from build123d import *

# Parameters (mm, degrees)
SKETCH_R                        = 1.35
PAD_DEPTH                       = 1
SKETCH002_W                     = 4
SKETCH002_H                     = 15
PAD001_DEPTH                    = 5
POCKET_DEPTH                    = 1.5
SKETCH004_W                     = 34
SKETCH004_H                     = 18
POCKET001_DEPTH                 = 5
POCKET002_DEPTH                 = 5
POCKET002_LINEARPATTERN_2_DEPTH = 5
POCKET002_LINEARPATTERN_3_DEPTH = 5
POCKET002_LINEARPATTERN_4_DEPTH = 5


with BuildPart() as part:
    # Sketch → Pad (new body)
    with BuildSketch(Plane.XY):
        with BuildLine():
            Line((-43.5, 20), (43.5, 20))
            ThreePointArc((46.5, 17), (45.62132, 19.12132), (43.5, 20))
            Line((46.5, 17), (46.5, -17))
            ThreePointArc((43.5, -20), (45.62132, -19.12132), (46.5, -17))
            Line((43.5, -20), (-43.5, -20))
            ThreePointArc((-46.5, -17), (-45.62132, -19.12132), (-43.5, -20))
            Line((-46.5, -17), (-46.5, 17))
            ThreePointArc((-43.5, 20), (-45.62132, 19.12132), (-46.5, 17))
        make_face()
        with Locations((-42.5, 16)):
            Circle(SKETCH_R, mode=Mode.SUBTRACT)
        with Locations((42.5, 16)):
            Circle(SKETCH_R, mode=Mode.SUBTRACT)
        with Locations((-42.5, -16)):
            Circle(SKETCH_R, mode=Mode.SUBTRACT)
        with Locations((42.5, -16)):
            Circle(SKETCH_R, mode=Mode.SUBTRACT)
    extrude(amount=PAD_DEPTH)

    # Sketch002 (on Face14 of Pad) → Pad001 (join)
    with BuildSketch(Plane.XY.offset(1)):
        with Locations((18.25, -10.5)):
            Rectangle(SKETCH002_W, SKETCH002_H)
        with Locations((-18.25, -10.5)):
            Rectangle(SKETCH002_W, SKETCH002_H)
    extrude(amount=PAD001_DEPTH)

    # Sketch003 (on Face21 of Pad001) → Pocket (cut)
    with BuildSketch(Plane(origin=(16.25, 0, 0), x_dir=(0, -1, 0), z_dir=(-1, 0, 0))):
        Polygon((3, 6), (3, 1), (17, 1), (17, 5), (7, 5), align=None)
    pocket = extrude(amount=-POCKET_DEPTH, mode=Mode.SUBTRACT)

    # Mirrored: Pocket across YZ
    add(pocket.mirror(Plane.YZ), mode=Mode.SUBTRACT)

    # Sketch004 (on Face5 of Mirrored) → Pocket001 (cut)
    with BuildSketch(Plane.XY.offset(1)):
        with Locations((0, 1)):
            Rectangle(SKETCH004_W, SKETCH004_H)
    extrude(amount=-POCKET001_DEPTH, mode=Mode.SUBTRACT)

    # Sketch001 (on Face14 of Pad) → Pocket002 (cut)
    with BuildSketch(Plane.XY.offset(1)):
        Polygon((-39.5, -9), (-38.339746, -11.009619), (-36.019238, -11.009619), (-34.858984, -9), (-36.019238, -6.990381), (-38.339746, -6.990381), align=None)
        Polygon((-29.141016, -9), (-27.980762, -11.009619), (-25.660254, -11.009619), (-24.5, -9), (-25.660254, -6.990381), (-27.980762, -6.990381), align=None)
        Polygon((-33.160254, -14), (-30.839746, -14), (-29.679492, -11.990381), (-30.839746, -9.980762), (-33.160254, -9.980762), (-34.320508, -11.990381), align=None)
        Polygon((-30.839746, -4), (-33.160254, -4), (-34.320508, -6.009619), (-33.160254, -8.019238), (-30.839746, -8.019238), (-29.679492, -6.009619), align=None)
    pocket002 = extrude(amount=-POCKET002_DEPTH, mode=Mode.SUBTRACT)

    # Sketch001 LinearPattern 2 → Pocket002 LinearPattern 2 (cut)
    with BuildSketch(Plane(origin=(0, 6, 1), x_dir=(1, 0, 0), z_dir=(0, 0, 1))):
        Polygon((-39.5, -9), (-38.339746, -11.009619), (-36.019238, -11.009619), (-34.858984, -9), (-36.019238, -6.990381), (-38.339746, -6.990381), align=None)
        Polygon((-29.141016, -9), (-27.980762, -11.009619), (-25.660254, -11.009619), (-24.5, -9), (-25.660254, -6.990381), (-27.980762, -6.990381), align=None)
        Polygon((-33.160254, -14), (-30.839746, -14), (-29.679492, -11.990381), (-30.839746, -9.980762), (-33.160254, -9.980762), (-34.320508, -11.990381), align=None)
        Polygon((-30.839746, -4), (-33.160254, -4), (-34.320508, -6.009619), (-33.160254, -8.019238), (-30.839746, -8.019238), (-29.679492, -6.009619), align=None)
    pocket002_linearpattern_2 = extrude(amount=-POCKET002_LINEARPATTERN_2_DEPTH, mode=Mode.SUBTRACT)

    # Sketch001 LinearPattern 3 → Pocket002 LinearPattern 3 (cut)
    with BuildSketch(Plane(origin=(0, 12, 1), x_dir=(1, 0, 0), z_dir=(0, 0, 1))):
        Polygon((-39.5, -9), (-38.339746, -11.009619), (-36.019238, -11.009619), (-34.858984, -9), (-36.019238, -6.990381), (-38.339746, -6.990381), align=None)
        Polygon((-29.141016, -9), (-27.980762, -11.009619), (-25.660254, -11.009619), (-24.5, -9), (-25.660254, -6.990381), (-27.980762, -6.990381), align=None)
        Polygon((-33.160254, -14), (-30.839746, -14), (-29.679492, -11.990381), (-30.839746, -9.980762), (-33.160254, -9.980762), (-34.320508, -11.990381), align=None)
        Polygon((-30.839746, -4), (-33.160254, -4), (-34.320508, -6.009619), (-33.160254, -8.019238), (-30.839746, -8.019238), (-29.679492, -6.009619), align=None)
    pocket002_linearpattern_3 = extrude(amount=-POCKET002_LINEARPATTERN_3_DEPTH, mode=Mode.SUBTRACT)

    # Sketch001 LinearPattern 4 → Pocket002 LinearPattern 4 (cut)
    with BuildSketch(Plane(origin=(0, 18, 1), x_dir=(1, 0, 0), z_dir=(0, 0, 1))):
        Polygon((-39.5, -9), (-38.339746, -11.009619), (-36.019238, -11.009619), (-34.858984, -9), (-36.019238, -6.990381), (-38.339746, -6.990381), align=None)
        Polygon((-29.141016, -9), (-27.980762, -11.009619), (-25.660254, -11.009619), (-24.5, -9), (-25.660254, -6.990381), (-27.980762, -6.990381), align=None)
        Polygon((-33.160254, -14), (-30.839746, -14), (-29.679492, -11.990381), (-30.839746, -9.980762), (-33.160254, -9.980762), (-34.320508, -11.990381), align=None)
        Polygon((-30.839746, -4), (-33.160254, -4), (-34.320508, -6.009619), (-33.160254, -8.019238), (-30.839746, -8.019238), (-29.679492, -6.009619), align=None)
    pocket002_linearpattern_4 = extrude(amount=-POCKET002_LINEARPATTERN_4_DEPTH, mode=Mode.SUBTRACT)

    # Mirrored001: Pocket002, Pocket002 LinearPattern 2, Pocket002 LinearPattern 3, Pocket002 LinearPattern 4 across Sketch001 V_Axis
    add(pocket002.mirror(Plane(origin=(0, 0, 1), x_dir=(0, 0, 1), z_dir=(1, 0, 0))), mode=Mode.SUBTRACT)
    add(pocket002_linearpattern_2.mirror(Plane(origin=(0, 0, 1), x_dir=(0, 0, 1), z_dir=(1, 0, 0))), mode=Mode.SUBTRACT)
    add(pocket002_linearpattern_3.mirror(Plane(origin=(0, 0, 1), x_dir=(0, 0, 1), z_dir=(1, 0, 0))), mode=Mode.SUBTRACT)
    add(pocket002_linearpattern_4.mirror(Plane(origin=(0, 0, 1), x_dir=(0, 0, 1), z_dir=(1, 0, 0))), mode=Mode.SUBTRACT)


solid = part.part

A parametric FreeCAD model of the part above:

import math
import FreeCAD as App
import Part
import Sketcher
Q = App.Units.Quantity


def add_polygon(sketch, points):
    """Adds a closed chain of lines whose ends are joined by coincident constraints."""
    first, n = sketch.GeometryCount, len(points)
    for a, b in zip(points, points[1:] + points[:1]):
        sketch.addGeometry(Part.LineSegment(App.Vector(*a, 0), App.Vector(*b, 0)), False)
    for i in range(n):
        sketch.addConstraint(Sketcher.Constraint("Coincident", first + i, 2, first + (i + 1) % n, 1))

doc = App.newDocument("Part")
body = doc.addObject("PartDesign::Body", "Body")

# Sketch on XY plane
sketch1 = doc.addObject("Sketcher::SketchObject", "Sketch")
body.addObject(sketch1)
sketch1.AttachmentSupport = (doc.XY_Plane, [""])
sketch1.MapMode = "FlatFace"
sketch1.addGeometry([
    Part.LineSegment(App.Vector(43.5, 20, 0), App.Vector(-43.5, 20, 0)),  # 0
    Part.ArcOfCircle(Part.Circle(App.Vector(-43.499999, 16.999999, 0), App.Vector(0, 0, 1), 3.000001), math.radians(90.000022), math.radians(179.999978)),  # 1
    Part.LineSegment(App.Vector(-46.5, 17, 0), App.Vector(-46.5, -17, 0)),  # 2
    Part.ArcOfCircle(Part.Circle(App.Vector(-43.499999, -16.999999, 0), App.Vector(0, 0, 1), 3.000001), math.radians(-179.999978), math.radians(-90.000022)),  # 3
    Part.LineSegment(App.Vector(-43.5, -20, 0), App.Vector(43.5, -20, 0)),  # 4
    Part.ArcOfCircle(Part.Circle(App.Vector(43.499999, -16.999999, 0), App.Vector(0, 0, 1), 3.000001), math.radians(-89.999978), math.radians(-0.000022)),  # 5
    Part.LineSegment(App.Vector(46.5, -17, 0), App.Vector(46.5, 17, 0)),  # 6
    Part.ArcOfCircle(Part.Circle(App.Vector(43.499999, 16.999999, 0), App.Vector(0, 0, 1), 3.000001), math.radians(0.000022), math.radians(89.999978)),  # 7
    Part.Circle(App.Vector(42.5, -16, 0), App.Vector(0, 0, 1), 1.35),  # 8
    Part.Circle(App.Vector(-42.5, -16, 0), App.Vector(0, 0, 1), 1.35),  # 9
    Part.Circle(App.Vector(42.5, 16, 0), App.Vector(0, 0, 1), 1.35),  # 10
    Part.Circle(App.Vector(-42.5, 16, 0), App.Vector(0, 0, 1), 1.35),  # 11
], False)
sketch1.addConstraint([
    Sketcher.Constraint("Tangent", 0, 2, 1, 1),
    Sketcher.Constraint("Tangent", 1, 2, 2, 1),
    Sketcher.Constraint("Tangent", 2, 2, 3, 1),
    Sketcher.Constraint("Tangent", 3, 2, 4, 1),
    Sketcher.Constraint("Tangent", 4, 2, 5, 1),
    Sketcher.Constraint("Tangent", 5, 2, 6, 1),
    Sketcher.Constraint("Tangent", 6, 2, 7, 1),
    Sketcher.Constraint("Tangent", 7, 2, 0, 1),
    Sketcher.Constraint("Horizontal", 0),
    Sketcher.Constraint("Vertical", 2),
    Sketcher.Constraint("Horizontal", 4),
    Sketcher.Constraint("Vertical", 6),
    Sketcher.Constraint("Equal", 1, 3),
    Sketcher.Constraint("Equal", 3, 5),
    Sketcher.Constraint("Equal", 5, 7),
    Sketcher.Constraint("Equal", 8, 9),
    Sketcher.Constraint("Equal", 9, 10),
    Sketcher.Constraint("Equal", 10, 11),
    Sketcher.Constraint("Symmetric", 1, 3, 5, 3, -1, 1),
    Sketcher.Constraint("Symmetric", 9, 3, 10, 3, -1, 1),
    Sketcher.Constraint("Symmetric", 8, 3, 11, 3, -1, 1),
    Sketcher.Constraint("Symmetric", 8, 3, 9, 3, -2),
    Sketcher.Constraint("Radius", 1, 3.000001),
    Sketcher.Constraint("Diameter", 8, 2.7),
    Sketcher.Constraint("DistanceX", 0, 2, 0, 1, 87.0),
    Sketcher.Constraint("DistanceY", 2, 2, 2, 1, 34.0),
    Sketcher.Constraint("DistanceY", 8, 3, -1, 1, 16.0),
    Sketcher.Constraint("DistanceX", 8, 3, 5, 3, 0.999999),
])
pad1 = doc.addObject("PartDesign::Pad", "Pad")
body.addObject(pad1)
pad1.Profile = sketch1
pad1.Length = 1

# Sketch on XY plane
sketch2 = doc.addObject("Sketcher::SketchObject", "Sketch001")
body.addObject(sketch2)
sketch2.AttachmentSupport = (doc.XY_Plane, [""])
sketch2.MapMode = "FlatFace"
sketch2.AttachmentOffset = App.Placement(App.Vector(0, 0, 1), App.Rotation())
add_polygon(sketch2, [(16.25, -3), (16.25, -18), (20.25, -18), (20.25, -3)])  # lines 0-3
add_polygon(sketch2, [(-20.25, -3), (-20.25, -18), (-16.25, -18), (-16.25, -3)])  # lines 4-7
sketch2.addConstraint([
    Sketcher.Constraint("Vertical", 0),
    Sketcher.Constraint("Horizontal", 1),
    Sketcher.Constraint("Vertical", 2),
    Sketcher.Constraint("Horizontal", 3),
    Sketcher.Constraint("Vertical", 4),
    Sketcher.Constraint("Horizontal", 5),
    Sketcher.Constraint("Vertical", 6),
    Sketcher.Constraint("Horizontal", 7),
    Sketcher.Constraint("Symmetric", 1, 2, 4, 2, -2),
    Sketcher.Constraint("Symmetric", 3, 2, 6, 2, -2),
    Sketcher.Constraint("DistanceX", 1, 1, 1, 2, 4.0),
    Sketcher.Constraint("DistanceY", 0, 2, 0, 1, 15.0),
    Sketcher.Constraint("DistanceY", 0, 2, -1, 1, 18.0),
    Sketcher.Constraint("DistanceX", 4, 2, 0, 2, 36.5),
])
pad2 = doc.addObject("PartDesign::Pad", "Pad001")
body.addObject(pad2)
pad2.Profile = sketch2
pad2.Length = 5

# Sketch on YZ plane
sketch3 = doc.addObject("Sketcher::SketchObject", "Sketch002")
body.addObject(sketch3)
sketch3.AttachmentSupport = (doc.YZ_Plane, [""])
sketch3.MapMode = "FlatFace"
sketch3.AttachmentOffset = App.Placement(App.Vector(0, 0, 16.25), App.Rotation())
add_polygon(sketch3, [(-3, 6), (-3, 1), (-17, 1), (-17, 5), (-7, 5)])  # lines 0-4
sketch3.addConstraint([
    Sketcher.Constraint("Vertical", 0),
    Sketcher.Constraint("Horizontal", 1),
    Sketcher.Constraint("Vertical", 2),
    Sketcher.Constraint("Horizontal", 3),
    Sketcher.Constraint("DistanceX", 1, 2, 1, 1, 14.0),
    Sketcher.Constraint("DistanceX", 3, 1, 3, 2, 10.0),
    Sketcher.Constraint("DistanceY", 0, 2, 0, 1, 5.0),
    Sketcher.Constraint("DistanceY", 2, 1, 2, 2, 4.0),
    Sketcher.Constraint("DistanceX", 0, 2, -1, 1, 3.0),
    Sketcher.Constraint("DistanceY", -1, 1, 0, 2, 1.0),
])
pocket1 = doc.addObject("PartDesign::Pocket", "Pocket")
body.addObject(pocket1)
pocket1.Profile = sketch3
pocket1.Length = 1.5
pocket1.Reversed = True
doc.recompute()

mirrored = doc.addObject("PartDesign::Mirrored", "Mirrored")
body.addObject(mirrored)
mirrored.Originals = [pocket1]
mirrored.MirrorPlane = (doc.YZ_Plane, [""])
body.Tip = mirrored

# Sketch on XY plane
sketch4 = doc.addObject("Sketcher::SketchObject", "Sketch003")
body.addObject(sketch4)
sketch4.AttachmentSupport = (doc.XY_Plane, [""])
sketch4.MapMode = "FlatFace"
sketch4.AttachmentOffset = App.Placement(App.Vector(0, 0, 1), App.Rotation())
add_polygon(sketch4, [(-17, 10), (-17, -8), (17, -8), (17, 10)])  # lines 0-3
sketch4.addConstraint([
    Sketcher.Constraint("Vertical", 0),
    Sketcher.Constraint("Horizontal", 1),
    Sketcher.Constraint("Vertical", 2),
    Sketcher.Constraint("Horizontal", 3),
    Sketcher.Constraint("DistanceX", 1, 1, 1, 2, 34.0),
    Sketcher.Constraint("DistanceY", 0, 2, 0, 1, 18.0),
    Sketcher.Constraint("DistanceX", 0, 2, -1, 1, 17.0),
    Sketcher.Constraint("DistanceY", 0, 2, -1, 1, 8.0),
])
pocket2 = doc.addObject("PartDesign::Pocket", "Pocket001")
body.addObject(pocket2)
pocket2.Profile = sketch4
pocket2.Length = 5

# Sketch on XY plane
sketch5 = doc.addObject("Sketcher::SketchObject", "Sketch004")
body.addObject(sketch5)
sketch5.AttachmentSupport = (doc.XY_Plane, [""])
sketch5.MapMode = "FlatFace"
sketch5.AttachmentOffset = App.Placement(App.Vector(0, 0, 1), App.Rotation())
add_polygon(sketch5, [(-39.5, -9), (-38.339746, -11.009619), (-36.019238, -11.009619), (-34.858984, -9), (-36.019238, -6.990381), (-38.339746, -6.990381)])  # lines 0-5
add_polygon(sketch5, [(-29.141016, -9), (-27.980762, -11.009619), (-25.660254, -11.009619), (-24.5, -9), (-25.660254, -6.990381), (-27.980762, -6.990381)])  # lines 6-11
add_polygon(sketch5, [(-33.160254, -14), (-30.839746, -14), (-29.679492, -11.990381), (-30.839746, -9.980762), (-33.160254, -9.980762), (-34.320508, -11.990381)])  # lines 12-17
add_polygon(sketch5, [(-30.839746, -4), (-33.160254, -4), (-34.320508, -6.009619), (-33.160254, -8.019238), (-30.839746, -8.019238), (-29.679492, -6.009619)])  # lines 18-23
sketch5.addConstraint([
    Sketcher.Constraint("Horizontal", 1),
    Sketcher.Constraint("Horizontal", 4),
    Sketcher.Constraint("Horizontal", 7),
    Sketcher.Constraint("Horizontal", 10),
    Sketcher.Constraint("Horizontal", 12),
    Sketcher.Constraint("Horizontal", 15),
    Sketcher.Constraint("Horizontal", 18),
    Sketcher.Constraint("Horizontal", 21),
    Sketcher.Constraint("Parallel", 0, 3),
    Sketcher.Constraint("Parallel", 2, 5),
    Sketcher.Constraint("Parallel", 3, 6),
    Sketcher.Constraint("Parallel", 5, 8),
    Sketcher.Constraint("Parallel", 6, 9),
    Sketcher.Constraint("Parallel", 8, 11),
    Sketcher.Constraint("Parallel", 11, 13),
    Sketcher.Constraint("Parallel", 9, 14),
    Sketcher.Constraint("Parallel", 13, 16),
    Sketcher.Constraint("Parallel", 14, 17),
    Sketcher.Constraint("Parallel", 16, 19),
    Sketcher.Constraint("Parallel", 17, 20),
    Sketcher.Constraint("Parallel", 19, 22),
    Sketcher.Constraint("Parallel", 20, 23),
    Sketcher.Constraint("Horizontal", 2, 2, 5, 2),
    Sketcher.Constraint("Horizontal", 1, 2, 6, 2),
    Sketcher.Constraint("Horizontal", 5, 2, 8, 2),
    Sketcher.Constraint("Horizontal", 4, 2, 9, 2),
    Sketcher.Constraint("Horizontal", 8, 2, 11, 2),
    Sketcher.Constraint("Horizontal", 13, 2, 16, 2),
    Sketcher.Constraint("Horizontal", 19, 2, 22, 2),
    Sketcher.Constraint("Vertical", 1, 2, 3, 2),
    Sketcher.Constraint("Vertical", 0, 2, 4, 2),
    Sketcher.Constraint("Vertical", 12, 2, 14, 2),
    Sketcher.Constraint("Vertical", 17, 2, 18, 2),
    Sketcher.Constraint("Vertical", 16, 2, 19, 2),
    Sketcher.Constraint("Vertical", 18, 2, 20, 2),
    Sketcher.Constraint("Vertical", 14, 2, 21, 2),
    Sketcher.Constraint("Equal", 4, 7),
    Sketcher.Constraint("Equal", 10, 12),
    Sketcher.Constraint("Equal", 11, 13),
    Sketcher.Constraint("Angle", 0, Q("-60.000002 deg")),
    Sketcher.Constraint("DistanceY", 2, 2, -1, 1, 9.0),
    Sketcher.Constraint("DistanceY", 12, 2, -1, 1, 14.0),
    Sketcher.Constraint("DistanceY", 18, 2, -1, 1, 4.0),
    Sketcher.Constraint("DistanceX", 5, 2, -1, 1, 39.5),
    Sketcher.Constraint("DistanceX", 8, 2, -1, 1, 24.5),
    Sketcher.Constraint("DistanceX", 7, 1, 7, 2, 2.320508),
    Sketcher.Constraint("Distance", 0, 2.320508),
    Sketcher.Constraint("DistanceX", 13, 2, -1, 1, 29.679492),
])
pocket3 = doc.addObject("PartDesign::Pocket", "Pocket002")
body.addObject(pocket3)
pocket3.Profile = sketch5
pocket3.Length = 5

# Sketch on XY plane
sketch6 = doc.addObject("Sketcher::SketchObject", "Sketch005")
body.addObject(sketch6)
sketch6.AttachmentSupport = (doc.XY_Plane, [""])
sketch6.MapMode = "FlatFace"
sketch6.AttachmentOffset = App.Placement(App.Vector(0, 0, 1), App.Rotation())
add_polygon(sketch6, [(-39.5, -3), (-38.339746, -5.009619), (-36.019238, -5.009619), (-34.858984, -3), (-36.019238, -0.990381), (-38.339746, -0.990381)])  # lines 0-5
add_polygon(sketch6, [(-29.141016, -3), (-27.980762, -5.009619), (-25.660254, -5.009619), (-24.5, -3), (-25.660254, -0.990381), (-27.980762, -0.990381)])  # lines 6-11
add_polygon(sketch6, [(-33.160254, -8), (-30.839746, -8), (-29.679492, -5.990381), (-30.839746, -3.980762), (-33.160254, -3.980762), (-34.320508, -5.990381)])  # lines 12-17
add_polygon(sketch6, [(-30.839746, 2), (-33.160254, 2), (-34.320508, -0.009619), (-33.160254, -2.019238), (-30.839746, -2.019238), (-29.679492, -0.009619)])  # lines 18-23
sketch6.addConstraint([
    Sketcher.Constraint("Horizontal", 1),
    Sketcher.Constraint("Horizontal", 4),
    Sketcher.Constraint("Horizontal", 7),
    Sketcher.Constraint("Horizontal", 10),
    Sketcher.Constraint("Horizontal", 12),
    Sketcher.Constraint("Horizontal", 15),
    Sketcher.Constraint("Horizontal", 18),
    Sketcher.Constraint("Horizontal", 21),
    Sketcher.Constraint("Parallel", 0, 3),
    Sketcher.Constraint("Parallel", 2, 5),
    Sketcher.Constraint("Parallel", 3, 6),
    Sketcher.Constraint("Parallel", 5, 8),
    Sketcher.Constraint("Parallel", 6, 9),
    Sketcher.Constraint("Parallel", 8, 11),
    Sketcher.Constraint("Parallel", 11, 13),
    Sketcher.Constraint("Parallel", 9, 14),
    Sketcher.Constraint("Parallel", 13, 16),
    Sketcher.Constraint("Parallel", 14, 17),
    Sketcher.Constraint("Parallel", 16, 19),
    Sketcher.Constraint("Parallel", 17, 20),
    Sketcher.Constraint("Parallel", 19, 22),
    Sketcher.Constraint("Parallel", 20, 23),
    Sketcher.Constraint("Horizontal", 2, 2, 5, 2),
    Sketcher.Constraint("Horizontal", 1, 2, 6, 2),
    Sketcher.Constraint("Horizontal", 5, 2, 8, 2),
    Sketcher.Constraint("Horizontal", 4, 2, 9, 2),
    Sketcher.Constraint("Horizontal", 8, 2, 11, 2),
    Sketcher.Constraint("Horizontal", 13, 2, 16, 2),
    Sketcher.Constraint("Horizontal", 19, 2, 22, 2),
    Sketcher.Constraint("Vertical", 1, 2, 3, 2),
    Sketcher.Constraint("Vertical", 0, 2, 4, 2),
    Sketcher.Constraint("Vertical", 12, 2, 14, 2),
    Sketcher.Constraint("Vertical", 17, 2, 18, 2),
    Sketcher.Constraint("Vertical", 16, 2, 19, 2),
    Sketcher.Constraint("Vertical", 18, 2, 20, 2),
    Sketcher.Constraint("Vertical", 14, 2, 21, 2),
    Sketcher.Constraint("Equal", 4, 7),
    Sketcher.Constraint("Equal", 10, 12),
    Sketcher.Constraint("Equal", 11, 13),
    Sketcher.Constraint("Angle", 0, Q("-60.000002 deg")),
    Sketcher.Constraint("DistanceY", 2, 2, -1, 1, 3.0),
    Sketcher.Constraint("DistanceY", 12, 2, -1, 1, 8.0),
    Sketcher.Constraint("DistanceY", -1, 1, 18, 2, 2.0),
    Sketcher.Constraint("DistanceX", 5, 2, -1, 1, 39.5),
    Sketcher.Constraint("DistanceX", 8, 2, -1, 1, 24.5),
    Sketcher.Constraint("DistanceX", 7, 1, 7, 2, 2.320508),
    Sketcher.Constraint("Distance", 0, 2.320508),
    Sketcher.Constraint("DistanceX", 13, 2, -1, 1, 29.679492),
])
pocket4 = doc.addObject("PartDesign::Pocket", "Pocket003")
body.addObject(pocket4)
pocket4.Profile = sketch6
pocket4.Length = 5

# Sketch on XY plane
sketch7 = doc.addObject("Sketcher::SketchObject", "Sketch006")
body.addObject(sketch7)
sketch7.AttachmentSupport = (doc.XY_Plane, [""])
sketch7.MapMode = "FlatFace"
sketch7.AttachmentOffset = App.Placement(App.Vector(0, 0, 1), App.Rotation())
add_polygon(sketch7, [(-39.5, 3), (-38.339746, 0.990381), (-36.019238, 0.990381), (-34.858984, 3), (-36.019238, 5.009619), (-38.339746, 5.009619)])  # lines 0-5
add_polygon(sketch7, [(-29.141016, 3), (-27.980762, 0.990381), (-25.660254, 0.990381), (-24.5, 3), (-25.660254, 5.009619), (-27.980762, 5.009619)])  # lines 6-11
add_polygon(sketch7, [(-33.160254, -2), (-30.839746, -2), (-29.679492, 0.009619), (-30.839746, 2.019238), (-33.160254, 2.019238), (-34.320508, 0.009619)])  # lines 12-17
add_polygon(sketch7, [(-30.839746, 8), (-33.160254, 8), (-34.320508, 5.990381), (-33.160254, 3.980762), (-30.839746, 3.980762), (-29.679492, 5.990381)])  # lines 18-23
sketch7.addConstraint([
    Sketcher.Constraint("Horizontal", 1),
    Sketcher.Constraint("Horizontal", 4),
    Sketcher.Constraint("Horizontal", 7),
    Sketcher.Constraint("Horizontal", 10),
    Sketcher.Constraint("Horizontal", 12),
    Sketcher.Constraint("Horizontal", 15),
    Sketcher.Constraint("Horizontal", 18),
    Sketcher.Constraint("Horizontal", 21),
    Sketcher.Constraint("Parallel", 0, 3),
    Sketcher.Constraint("Parallel", 2, 5),
    Sketcher.Constraint("Parallel", 3, 6),
    Sketcher.Constraint("Parallel", 5, 8),
    Sketcher.Constraint("Parallel", 6, 9),
    Sketcher.Constraint("Parallel", 8, 11),
    Sketcher.Constraint("Parallel", 11, 13),
    Sketcher.Constraint("Parallel", 9, 14),
    Sketcher.Constraint("Parallel", 13, 16),
    Sketcher.Constraint("Parallel", 14, 17),
    Sketcher.Constraint("Parallel", 16, 19),
    Sketcher.Constraint("Parallel", 17, 20),
    Sketcher.Constraint("Parallel", 19, 22),
    Sketcher.Constraint("Parallel", 20, 23),
    Sketcher.Constraint("Horizontal", 2, 2, 5, 2),
    Sketcher.Constraint("Horizontal", 1, 2, 6, 2),
    Sketcher.Constraint("Horizontal", 5, 2, 8, 2),
    Sketcher.Constraint("Horizontal", 4, 2, 9, 2),
    Sketcher.Constraint("Horizontal", 8, 2, 11, 2),
    Sketcher.Constraint("Horizontal", 13, 2, 16, 2),
    Sketcher.Constraint("Horizontal", 19, 2, 22, 2),
    Sketcher.Constraint("Vertical", 1, 2, 3, 2),
    Sketcher.Constraint("Vertical", 0, 2, 4, 2),
    Sketcher.Constraint("Vertical", 12, 2, 14, 2),
    Sketcher.Constraint("Vertical", 17, 2, 18, 2),
    Sketcher.Constraint("Vertical", 16, 2, 19, 2),
    Sketcher.Constraint("Vertical", 18, 2, 20, 2),
    Sketcher.Constraint("Vertical", 14, 2, 21, 2),
    Sketcher.Constraint("Equal", 4, 7),
    Sketcher.Constraint("Equal", 10, 12),
    Sketcher.Constraint("Equal", 11, 13),
    Sketcher.Constraint("Angle", 0, Q("-60.000002 deg")),
    Sketcher.Constraint("DistanceY", -1, 1, 2, 2, 3.0),
    Sketcher.Constraint("DistanceY", 12, 2, -1, 1, 2.0),
    Sketcher.Constraint("DistanceY", -1, 1, 18, 2, 8.0),
    Sketcher.Constraint("DistanceX", 5, 2, -1, 1, 39.5),
    Sketcher.Constraint("DistanceX", 8, 2, -1, 1, 24.5),
    Sketcher.Constraint("DistanceX", 7, 1, 7, 2, 2.320508),
    Sketcher.Constraint("Distance", 0, 2.320508),
    Sketcher.Constraint("DistanceX", 13, 2, -1, 1, 29.679492),
])
pocket5 = doc.addObject("PartDesign::Pocket", "Pocket004")
body.addObject(pocket5)
pocket5.Profile = sketch7
pocket5.Length = 5

# Sketch on XY plane
sketch8 = doc.addObject("Sketcher::SketchObject", "Sketch007")
body.addObject(sketch8)
sketch8.AttachmentSupport = (doc.XY_Plane, [""])
sketch8.MapMode = "FlatFace"
sketch8.AttachmentOffset = App.Placement(App.Vector(0, 0, 1), App.Rotation())
add_polygon(sketch8, [(-39.5, 9), (-38.339746, 6.990381), (-36.019238, 6.990381), (-34.858984, 9), (-36.019238, 11.009619), (-38.339746, 11.009619)])  # lines 0-5
add_polygon(sketch8, [(-29.141016, 9), (-27.980762, 6.990381), (-25.660254, 6.990381), (-24.5, 9), (-25.660254, 11.009619), (-27.980762, 11.009619)])  # lines 6-11
add_polygon(sketch8, [(-33.160254, 4), (-30.839746, 4), (-29.679492, 6.009619), (-30.839746, 8.019238), (-33.160254, 8.019238), (-34.320508, 6.009619)])  # lines 12-17
add_polygon(sketch8, [(-30.839746, 14), (-33.160254, 14), (-34.320508, 11.990381), (-33.160254, 9.980762), (-30.839746, 9.980762), (-29.679492, 11.990381)])  # lines 18-23
sketch8.addConstraint([
    Sketcher.Constraint("Horizontal", 1),
    Sketcher.Constraint("Horizontal", 4),
    Sketcher.Constraint("Horizontal", 7),
    Sketcher.Constraint("Horizontal", 10),
    Sketcher.Constraint("Horizontal", 12),
    Sketcher.Constraint("Horizontal", 15),
    Sketcher.Constraint("Horizontal", 18),
    Sketcher.Constraint("Horizontal", 21),
    Sketcher.Constraint("Parallel", 0, 3),
    Sketcher.Constraint("Parallel", 2, 5),
    Sketcher.Constraint("Parallel", 3, 6),
    Sketcher.Constraint("Parallel", 5, 8),
    Sketcher.Constraint("Parallel", 6, 9),
    Sketcher.Constraint("Parallel", 8, 11),
    Sketcher.Constraint("Parallel", 11, 13),
    Sketcher.Constraint("Parallel", 9, 14),
    Sketcher.Constraint("Parallel", 13, 16),
    Sketcher.Constraint("Parallel", 14, 17),
    Sketcher.Constraint("Parallel", 16, 19),
    Sketcher.Constraint("Parallel", 17, 20),
    Sketcher.Constraint("Parallel", 19, 22),
    Sketcher.Constraint("Parallel", 20, 23),
    Sketcher.Constraint("Horizontal", 2, 2, 5, 2),
    Sketcher.Constraint("Horizontal", 1, 2, 6, 2),
    Sketcher.Constraint("Horizontal", 5, 2, 8, 2),
    Sketcher.Constraint("Horizontal", 4, 2, 9, 2),
    Sketcher.Constraint("Horizontal", 8, 2, 11, 2),
    Sketcher.Constraint("Horizontal", 13, 2, 16, 2),
    Sketcher.Constraint("Horizontal", 19, 2, 22, 2),
    Sketcher.Constraint("Vertical", 1, 2, 3, 2),
    Sketcher.Constraint("Vertical", 0, 2, 4, 2),
    Sketcher.Constraint("Vertical", 12, 2, 14, 2),
    Sketcher.Constraint("Vertical", 17, 2, 18, 2),
    Sketcher.Constraint("Vertical", 16, 2, 19, 2),
    Sketcher.Constraint("Vertical", 18, 2, 20, 2),
    Sketcher.Constraint("Vertical", 14, 2, 21, 2),
    Sketcher.Constraint("Equal", 4, 7),
    Sketcher.Constraint("Equal", 10, 12),
    Sketcher.Constraint("Equal", 11, 13),
    Sketcher.Constraint("Angle", 0, Q("-60.000002 deg")),
    Sketcher.Constraint("DistanceY", -1, 1, 2, 2, 9.0),
    Sketcher.Constraint("DistanceY", -1, 1, 12, 2, 4.0),
    Sketcher.Constraint("DistanceY", -1, 1, 18, 2, 14.0),
    Sketcher.Constraint("DistanceX", 5, 2, -1, 1, 39.5),
    Sketcher.Constraint("DistanceX", 8, 2, -1, 1, 24.5),
    Sketcher.Constraint("DistanceX", 7, 1, 7, 2, 2.320508),
    Sketcher.Constraint("Distance", 0, 2.320508),
    Sketcher.Constraint("DistanceX", 13, 2, -1, 1, 29.679492),
])
pocket6 = doc.addObject("PartDesign::Pocket", "Pocket005")
body.addObject(pocket6)
pocket6.Profile = sketch8
pocket6.Length = 5
doc.recompute()

mirrored2 = doc.addObject("PartDesign::Mirrored", "Mirrored001")
body.addObject(mirrored2)
mirrored2.Originals = [pocket3, pocket4, pocket5, pocket6]
mirrored2.MirrorPlane = (doc.YZ_Plane, [""])
body.Tip = mirrored2

doc.recompute()
